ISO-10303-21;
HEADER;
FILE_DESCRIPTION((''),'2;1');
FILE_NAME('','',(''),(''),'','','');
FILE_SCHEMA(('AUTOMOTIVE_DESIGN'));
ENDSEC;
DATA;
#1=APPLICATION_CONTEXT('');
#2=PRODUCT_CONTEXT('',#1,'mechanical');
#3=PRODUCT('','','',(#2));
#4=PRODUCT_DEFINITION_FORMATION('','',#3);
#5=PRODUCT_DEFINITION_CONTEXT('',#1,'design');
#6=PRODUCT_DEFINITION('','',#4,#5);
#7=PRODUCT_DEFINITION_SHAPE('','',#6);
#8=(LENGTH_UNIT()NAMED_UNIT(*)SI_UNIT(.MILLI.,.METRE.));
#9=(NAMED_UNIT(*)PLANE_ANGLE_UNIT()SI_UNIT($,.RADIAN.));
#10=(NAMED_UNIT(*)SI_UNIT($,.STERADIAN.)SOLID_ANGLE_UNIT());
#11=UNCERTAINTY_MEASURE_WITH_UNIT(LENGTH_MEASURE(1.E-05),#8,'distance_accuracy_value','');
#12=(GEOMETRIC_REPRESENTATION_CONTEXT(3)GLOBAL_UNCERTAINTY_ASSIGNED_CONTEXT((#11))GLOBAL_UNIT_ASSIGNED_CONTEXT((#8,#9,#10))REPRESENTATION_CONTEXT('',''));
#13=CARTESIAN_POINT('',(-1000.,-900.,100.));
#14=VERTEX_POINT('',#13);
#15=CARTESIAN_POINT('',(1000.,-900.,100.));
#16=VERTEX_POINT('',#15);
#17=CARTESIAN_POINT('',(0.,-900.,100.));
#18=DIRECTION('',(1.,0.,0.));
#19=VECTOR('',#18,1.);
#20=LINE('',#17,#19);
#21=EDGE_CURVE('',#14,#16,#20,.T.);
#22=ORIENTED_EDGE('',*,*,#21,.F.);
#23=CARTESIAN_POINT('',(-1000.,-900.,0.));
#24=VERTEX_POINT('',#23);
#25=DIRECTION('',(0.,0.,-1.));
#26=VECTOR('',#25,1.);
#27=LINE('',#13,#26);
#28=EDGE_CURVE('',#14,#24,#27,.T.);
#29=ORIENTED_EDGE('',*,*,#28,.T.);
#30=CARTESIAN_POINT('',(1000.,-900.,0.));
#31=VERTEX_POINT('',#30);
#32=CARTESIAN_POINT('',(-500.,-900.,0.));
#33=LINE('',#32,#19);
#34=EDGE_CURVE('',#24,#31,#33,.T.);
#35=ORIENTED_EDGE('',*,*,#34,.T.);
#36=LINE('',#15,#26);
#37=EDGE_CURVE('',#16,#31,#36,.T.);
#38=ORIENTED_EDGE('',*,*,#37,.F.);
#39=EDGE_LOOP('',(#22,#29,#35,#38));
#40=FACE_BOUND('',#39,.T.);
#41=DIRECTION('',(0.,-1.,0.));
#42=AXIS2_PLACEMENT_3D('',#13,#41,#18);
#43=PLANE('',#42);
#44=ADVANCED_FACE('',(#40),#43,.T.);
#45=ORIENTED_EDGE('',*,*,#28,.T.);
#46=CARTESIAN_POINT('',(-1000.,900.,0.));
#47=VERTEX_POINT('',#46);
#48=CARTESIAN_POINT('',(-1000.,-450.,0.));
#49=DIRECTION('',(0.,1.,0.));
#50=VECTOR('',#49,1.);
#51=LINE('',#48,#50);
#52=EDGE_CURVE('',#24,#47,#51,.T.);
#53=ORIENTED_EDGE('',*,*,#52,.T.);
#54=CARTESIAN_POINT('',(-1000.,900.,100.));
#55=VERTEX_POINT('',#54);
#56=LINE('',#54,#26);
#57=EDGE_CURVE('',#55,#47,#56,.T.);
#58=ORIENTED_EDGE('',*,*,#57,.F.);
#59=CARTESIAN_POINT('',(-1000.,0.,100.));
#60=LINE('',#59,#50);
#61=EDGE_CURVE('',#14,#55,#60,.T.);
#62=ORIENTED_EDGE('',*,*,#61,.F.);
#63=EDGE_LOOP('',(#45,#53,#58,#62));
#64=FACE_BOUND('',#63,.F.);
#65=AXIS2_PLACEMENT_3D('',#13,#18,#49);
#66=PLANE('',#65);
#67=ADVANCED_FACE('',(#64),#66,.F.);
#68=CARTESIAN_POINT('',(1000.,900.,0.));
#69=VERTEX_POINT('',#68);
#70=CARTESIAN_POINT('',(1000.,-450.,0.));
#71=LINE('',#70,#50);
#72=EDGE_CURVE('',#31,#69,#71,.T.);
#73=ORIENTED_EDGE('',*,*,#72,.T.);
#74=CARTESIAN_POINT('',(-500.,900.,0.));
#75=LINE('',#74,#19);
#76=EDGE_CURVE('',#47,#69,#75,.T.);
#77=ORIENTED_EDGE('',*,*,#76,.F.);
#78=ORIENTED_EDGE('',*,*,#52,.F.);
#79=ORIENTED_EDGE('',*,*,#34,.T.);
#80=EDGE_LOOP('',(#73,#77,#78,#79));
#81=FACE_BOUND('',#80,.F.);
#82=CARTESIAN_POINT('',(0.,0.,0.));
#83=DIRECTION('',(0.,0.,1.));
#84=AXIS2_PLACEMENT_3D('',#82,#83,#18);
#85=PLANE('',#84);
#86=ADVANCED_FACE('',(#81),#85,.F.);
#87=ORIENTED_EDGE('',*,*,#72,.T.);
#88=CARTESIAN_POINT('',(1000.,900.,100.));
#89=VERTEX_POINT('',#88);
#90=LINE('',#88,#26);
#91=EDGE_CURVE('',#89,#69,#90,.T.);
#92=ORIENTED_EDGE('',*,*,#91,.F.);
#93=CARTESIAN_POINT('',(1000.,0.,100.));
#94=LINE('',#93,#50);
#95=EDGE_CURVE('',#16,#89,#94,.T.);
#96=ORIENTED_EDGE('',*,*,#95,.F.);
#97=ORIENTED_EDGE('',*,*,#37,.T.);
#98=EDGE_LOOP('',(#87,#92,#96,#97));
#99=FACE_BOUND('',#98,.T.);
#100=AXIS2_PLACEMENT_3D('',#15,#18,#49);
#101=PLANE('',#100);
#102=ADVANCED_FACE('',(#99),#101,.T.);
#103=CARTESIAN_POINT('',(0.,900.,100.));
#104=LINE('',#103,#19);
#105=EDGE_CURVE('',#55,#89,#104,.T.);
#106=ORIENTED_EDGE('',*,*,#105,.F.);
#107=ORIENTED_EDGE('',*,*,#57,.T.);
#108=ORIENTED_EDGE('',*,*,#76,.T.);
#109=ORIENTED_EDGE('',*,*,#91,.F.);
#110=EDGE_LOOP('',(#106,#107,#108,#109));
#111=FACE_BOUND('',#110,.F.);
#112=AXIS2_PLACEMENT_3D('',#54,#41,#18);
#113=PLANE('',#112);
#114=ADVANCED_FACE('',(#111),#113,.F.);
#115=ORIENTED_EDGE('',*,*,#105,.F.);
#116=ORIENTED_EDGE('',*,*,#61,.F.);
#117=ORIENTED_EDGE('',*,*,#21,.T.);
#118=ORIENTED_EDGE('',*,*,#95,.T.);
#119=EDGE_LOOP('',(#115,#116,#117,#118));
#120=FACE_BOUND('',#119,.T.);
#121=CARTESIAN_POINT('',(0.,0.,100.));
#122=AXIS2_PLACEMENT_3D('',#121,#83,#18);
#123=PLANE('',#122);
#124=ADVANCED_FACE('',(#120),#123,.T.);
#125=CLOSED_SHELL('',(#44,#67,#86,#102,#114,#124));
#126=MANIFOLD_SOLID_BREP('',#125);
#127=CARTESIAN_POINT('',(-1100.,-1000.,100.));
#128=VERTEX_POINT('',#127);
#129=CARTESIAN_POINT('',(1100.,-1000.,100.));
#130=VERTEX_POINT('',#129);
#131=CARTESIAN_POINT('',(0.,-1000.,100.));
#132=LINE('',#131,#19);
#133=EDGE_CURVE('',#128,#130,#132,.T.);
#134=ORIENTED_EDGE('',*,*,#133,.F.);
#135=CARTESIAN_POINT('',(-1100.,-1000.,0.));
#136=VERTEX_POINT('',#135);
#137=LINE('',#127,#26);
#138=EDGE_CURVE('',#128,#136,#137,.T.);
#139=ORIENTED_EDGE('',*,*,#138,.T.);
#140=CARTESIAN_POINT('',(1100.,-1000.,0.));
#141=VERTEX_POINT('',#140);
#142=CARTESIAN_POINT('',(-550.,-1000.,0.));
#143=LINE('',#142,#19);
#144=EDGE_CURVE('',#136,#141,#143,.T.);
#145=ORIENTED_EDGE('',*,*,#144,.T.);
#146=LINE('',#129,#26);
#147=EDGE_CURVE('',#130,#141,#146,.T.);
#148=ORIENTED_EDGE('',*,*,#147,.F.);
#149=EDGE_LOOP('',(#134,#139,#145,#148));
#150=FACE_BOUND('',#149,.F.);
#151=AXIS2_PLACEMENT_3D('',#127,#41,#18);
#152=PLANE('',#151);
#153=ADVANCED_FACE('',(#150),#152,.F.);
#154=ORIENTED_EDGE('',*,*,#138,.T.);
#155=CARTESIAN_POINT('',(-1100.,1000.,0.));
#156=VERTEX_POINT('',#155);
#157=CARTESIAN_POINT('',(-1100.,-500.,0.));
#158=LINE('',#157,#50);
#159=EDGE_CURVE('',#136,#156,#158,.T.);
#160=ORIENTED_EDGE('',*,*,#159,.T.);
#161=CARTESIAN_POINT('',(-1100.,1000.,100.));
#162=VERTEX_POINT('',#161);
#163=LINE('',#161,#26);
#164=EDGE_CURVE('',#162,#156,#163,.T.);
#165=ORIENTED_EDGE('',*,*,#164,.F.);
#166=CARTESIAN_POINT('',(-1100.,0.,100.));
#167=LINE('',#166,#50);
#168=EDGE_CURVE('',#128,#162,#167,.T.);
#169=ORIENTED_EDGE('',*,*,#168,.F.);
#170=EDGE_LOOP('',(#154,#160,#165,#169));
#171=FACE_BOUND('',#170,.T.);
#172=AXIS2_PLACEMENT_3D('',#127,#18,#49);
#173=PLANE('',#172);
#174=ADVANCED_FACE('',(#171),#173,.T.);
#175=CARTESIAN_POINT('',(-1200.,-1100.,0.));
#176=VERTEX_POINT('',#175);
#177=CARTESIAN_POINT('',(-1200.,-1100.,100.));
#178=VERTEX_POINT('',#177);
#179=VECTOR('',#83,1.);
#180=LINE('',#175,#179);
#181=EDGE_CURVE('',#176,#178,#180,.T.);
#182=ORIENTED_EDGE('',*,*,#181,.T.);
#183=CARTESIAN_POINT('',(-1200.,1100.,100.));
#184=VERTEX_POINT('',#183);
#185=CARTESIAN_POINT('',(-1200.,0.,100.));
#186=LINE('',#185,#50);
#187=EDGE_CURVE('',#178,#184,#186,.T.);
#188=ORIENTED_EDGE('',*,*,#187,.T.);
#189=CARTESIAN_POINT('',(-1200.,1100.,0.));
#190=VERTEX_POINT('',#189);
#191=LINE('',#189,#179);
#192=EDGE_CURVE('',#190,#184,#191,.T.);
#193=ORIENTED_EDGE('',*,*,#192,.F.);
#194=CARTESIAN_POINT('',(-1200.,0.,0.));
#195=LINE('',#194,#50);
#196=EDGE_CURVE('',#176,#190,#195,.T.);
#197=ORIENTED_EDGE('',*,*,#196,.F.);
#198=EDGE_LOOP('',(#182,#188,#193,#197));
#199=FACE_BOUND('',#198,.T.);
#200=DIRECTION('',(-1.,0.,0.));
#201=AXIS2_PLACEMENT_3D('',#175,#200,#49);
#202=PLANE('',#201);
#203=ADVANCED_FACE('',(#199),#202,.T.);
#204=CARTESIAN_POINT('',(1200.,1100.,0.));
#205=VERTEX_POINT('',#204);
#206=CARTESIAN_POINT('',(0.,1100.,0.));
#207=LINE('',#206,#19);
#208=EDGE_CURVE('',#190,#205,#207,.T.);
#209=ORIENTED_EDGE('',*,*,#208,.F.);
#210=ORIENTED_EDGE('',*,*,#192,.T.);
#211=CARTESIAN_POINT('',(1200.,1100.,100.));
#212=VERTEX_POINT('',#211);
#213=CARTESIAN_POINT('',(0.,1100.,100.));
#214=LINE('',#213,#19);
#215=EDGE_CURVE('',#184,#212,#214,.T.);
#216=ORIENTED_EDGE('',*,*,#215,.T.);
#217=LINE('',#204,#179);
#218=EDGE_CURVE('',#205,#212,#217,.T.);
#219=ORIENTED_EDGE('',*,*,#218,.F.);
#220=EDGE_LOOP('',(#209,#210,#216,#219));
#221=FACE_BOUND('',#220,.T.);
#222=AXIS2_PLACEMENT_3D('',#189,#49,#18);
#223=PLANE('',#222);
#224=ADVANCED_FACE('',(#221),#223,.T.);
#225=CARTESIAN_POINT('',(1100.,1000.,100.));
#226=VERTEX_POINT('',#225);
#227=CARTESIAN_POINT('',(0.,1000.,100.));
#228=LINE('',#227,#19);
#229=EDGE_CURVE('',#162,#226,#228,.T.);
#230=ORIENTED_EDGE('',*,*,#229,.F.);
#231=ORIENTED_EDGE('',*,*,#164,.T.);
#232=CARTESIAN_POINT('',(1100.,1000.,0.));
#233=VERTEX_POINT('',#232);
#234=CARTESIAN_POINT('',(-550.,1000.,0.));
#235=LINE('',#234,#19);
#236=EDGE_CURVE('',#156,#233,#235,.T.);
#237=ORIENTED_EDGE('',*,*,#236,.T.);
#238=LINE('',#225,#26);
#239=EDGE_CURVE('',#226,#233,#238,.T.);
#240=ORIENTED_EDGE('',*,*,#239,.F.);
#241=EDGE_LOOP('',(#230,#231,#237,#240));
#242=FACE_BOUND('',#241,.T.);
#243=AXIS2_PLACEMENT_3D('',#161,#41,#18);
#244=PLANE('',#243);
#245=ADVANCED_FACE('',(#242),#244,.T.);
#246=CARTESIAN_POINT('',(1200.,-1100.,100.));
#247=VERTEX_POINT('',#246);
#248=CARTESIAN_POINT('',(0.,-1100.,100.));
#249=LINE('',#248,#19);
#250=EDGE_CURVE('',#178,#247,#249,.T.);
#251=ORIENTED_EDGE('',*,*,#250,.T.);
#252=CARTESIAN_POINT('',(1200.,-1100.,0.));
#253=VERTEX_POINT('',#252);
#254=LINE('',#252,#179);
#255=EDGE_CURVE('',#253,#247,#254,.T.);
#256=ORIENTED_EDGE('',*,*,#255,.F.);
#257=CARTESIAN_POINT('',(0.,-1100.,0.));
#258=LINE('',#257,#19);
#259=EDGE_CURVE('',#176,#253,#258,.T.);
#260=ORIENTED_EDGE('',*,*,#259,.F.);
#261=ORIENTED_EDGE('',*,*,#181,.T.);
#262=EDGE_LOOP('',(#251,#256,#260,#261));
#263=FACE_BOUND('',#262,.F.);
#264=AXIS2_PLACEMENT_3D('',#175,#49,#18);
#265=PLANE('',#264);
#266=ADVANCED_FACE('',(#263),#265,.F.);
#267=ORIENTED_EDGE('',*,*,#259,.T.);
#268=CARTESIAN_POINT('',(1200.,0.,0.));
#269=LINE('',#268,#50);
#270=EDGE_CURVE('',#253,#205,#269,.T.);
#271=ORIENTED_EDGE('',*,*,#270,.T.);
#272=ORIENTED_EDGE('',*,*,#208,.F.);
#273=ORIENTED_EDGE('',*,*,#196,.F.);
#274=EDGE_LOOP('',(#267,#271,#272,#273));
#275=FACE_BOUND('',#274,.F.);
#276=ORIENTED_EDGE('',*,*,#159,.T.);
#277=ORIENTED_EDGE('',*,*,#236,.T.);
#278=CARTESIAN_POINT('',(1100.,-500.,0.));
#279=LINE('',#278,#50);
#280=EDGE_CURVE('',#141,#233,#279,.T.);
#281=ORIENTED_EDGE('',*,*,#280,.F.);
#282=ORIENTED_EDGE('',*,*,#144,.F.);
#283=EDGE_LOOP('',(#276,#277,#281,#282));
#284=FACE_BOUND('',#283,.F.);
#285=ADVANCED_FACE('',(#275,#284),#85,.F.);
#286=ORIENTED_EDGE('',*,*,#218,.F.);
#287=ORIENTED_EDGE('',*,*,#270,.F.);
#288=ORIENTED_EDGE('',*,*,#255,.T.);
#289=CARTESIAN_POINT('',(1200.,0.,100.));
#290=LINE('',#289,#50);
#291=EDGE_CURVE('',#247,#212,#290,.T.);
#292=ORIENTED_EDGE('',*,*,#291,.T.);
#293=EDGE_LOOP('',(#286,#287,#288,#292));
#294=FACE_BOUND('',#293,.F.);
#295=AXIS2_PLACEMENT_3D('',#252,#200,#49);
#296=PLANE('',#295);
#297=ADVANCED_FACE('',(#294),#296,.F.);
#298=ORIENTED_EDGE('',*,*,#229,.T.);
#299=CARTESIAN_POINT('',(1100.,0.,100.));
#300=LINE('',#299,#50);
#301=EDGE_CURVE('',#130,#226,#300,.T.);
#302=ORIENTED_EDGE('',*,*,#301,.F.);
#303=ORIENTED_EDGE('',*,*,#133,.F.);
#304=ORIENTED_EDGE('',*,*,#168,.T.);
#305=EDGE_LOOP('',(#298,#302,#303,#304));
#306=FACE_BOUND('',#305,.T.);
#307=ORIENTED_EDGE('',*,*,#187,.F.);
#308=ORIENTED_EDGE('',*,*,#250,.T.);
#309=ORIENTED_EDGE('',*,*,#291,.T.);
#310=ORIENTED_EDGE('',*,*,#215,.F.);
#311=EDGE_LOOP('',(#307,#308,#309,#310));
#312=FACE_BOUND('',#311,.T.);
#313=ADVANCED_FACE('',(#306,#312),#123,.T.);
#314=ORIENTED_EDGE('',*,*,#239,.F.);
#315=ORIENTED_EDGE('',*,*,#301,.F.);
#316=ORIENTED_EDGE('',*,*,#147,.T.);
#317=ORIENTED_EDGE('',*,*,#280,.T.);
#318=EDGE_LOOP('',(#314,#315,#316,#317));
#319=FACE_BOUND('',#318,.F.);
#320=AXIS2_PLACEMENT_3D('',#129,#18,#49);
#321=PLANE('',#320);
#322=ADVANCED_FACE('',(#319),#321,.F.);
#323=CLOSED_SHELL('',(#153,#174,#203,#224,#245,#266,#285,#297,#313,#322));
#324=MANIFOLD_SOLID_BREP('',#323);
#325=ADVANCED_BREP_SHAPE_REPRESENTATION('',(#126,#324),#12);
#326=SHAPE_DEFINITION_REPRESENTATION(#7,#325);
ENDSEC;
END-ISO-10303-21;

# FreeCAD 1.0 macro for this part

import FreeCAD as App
import Part
import Sketcher


def add_polygon(sketch, points):
    """Adds a closed chain of lines whose ends are joined by coincident constraints."""
    first, n = sketch.GeometryCount, len(points)
    for a, b in zip(points, points[1:] + points[:1]):
        sketch.addGeometry(Part.LineSegment(App.Vector(*a, 0), App.Vector(*b, 0)), False)
    for i in range(n):
        sketch.addConstraint(Sketcher.Constraint("Coincident", first + i, 2, first + (i + 1) % n, 1))

doc = App.newDocument("Part")
body = doc.addObject("PartDesign::Body", "Body")
body.AllowCompound = True

# Sketch on XY plane
sketch1 = body.newObject("Sketcher::SketchObject", "Sketch")
sketch1.AttachmentSupport = (doc.getObject("XY_Plane"), [""])
sketch1.MapMode = "FlatFace"
add_polygon(sketch1, [(-1200, 1100), (-1200, -1100), (1200, -1100), (1200, 1100)])  # lines 0-3
sketch1.addConstraint([
    Sketcher.Constraint("Vertical", 0),
    Sketcher.Constraint("Horizontal", 1),
    Sketcher.Constraint("Vertical", 2),
    Sketcher.Constraint("Horizontal", 3),
    Sketcher.Constraint("Symmetric", 0, 2, 2, 2, -1, 1),
    Sketcher.Constraint("DistanceX", 1, 1, 1, 2, 2400.0),
    Sketcher.Constraint("DistanceY", 0, 2, 0, 1, 2200.0),
])
pad1 = body.newObject("PartDesign::Pad", "Pad")
pad1.Profile = sketch1
pad1.Length = 100

# Sketch on XY plane
sketch2 = body.newObject("Sketcher::SketchObject", "Sketch001")
sketch2.AttachmentSupport = (doc.getObject("XY_Plane"), [""])
sketch2.MapMode = "FlatFace"
sketch2.AttachmentOffset = App.Placement(App.Vector(0, 0, 100), App.Rotation())
add_polygon(sketch2, [(-1100, 1000), (-1100, -1000), (1100, -1000), (1100, 1000)])  # lines 0-3
add_polygon(sketch2, [(1000, -900), (-1000, -900), (-1000, 900), (1000, 900)])  # lines 4-7
sketch2.addConstraint([
    Sketcher.Constraint("Vertical", 0),
    Sketcher.Constraint("Horizontal", 1),
    Sketcher.Constraint("Vertical", 2),
    Sketcher.Constraint("Horizontal", 3),
    Sketcher.Constraint("Horizontal", 4),
    Sketcher.Constraint("Vertical", 5),
    Sketcher.Constraint("Horizontal", 6),
    Sketcher.Constraint("Vertical", 7),
    Sketcher.Constraint("Symmetric", 0, 2, 2, 2, -1, 1),
    Sketcher.Constraint("Symmetric", 4, 2, 6, 2, -1, 1),
    Sketcher.Constraint("Equal", 6, 0),
    Sketcher.Constraint("DistanceX", 1, 1, 1, 2, 2200.0),
    Sketcher.Constraint("DistanceX", 4, 2, 4, 1, 2000.0),
    Sketcher.Constraint("DistanceY", 5, 1, 5, 2, 1800.0),
])
pocket1 = body.newObject("PartDesign::Pocket", "Pocket")
pocket1.Profile = sketch2
pocket1.Type = "ThroughAll"

doc.recompute()
